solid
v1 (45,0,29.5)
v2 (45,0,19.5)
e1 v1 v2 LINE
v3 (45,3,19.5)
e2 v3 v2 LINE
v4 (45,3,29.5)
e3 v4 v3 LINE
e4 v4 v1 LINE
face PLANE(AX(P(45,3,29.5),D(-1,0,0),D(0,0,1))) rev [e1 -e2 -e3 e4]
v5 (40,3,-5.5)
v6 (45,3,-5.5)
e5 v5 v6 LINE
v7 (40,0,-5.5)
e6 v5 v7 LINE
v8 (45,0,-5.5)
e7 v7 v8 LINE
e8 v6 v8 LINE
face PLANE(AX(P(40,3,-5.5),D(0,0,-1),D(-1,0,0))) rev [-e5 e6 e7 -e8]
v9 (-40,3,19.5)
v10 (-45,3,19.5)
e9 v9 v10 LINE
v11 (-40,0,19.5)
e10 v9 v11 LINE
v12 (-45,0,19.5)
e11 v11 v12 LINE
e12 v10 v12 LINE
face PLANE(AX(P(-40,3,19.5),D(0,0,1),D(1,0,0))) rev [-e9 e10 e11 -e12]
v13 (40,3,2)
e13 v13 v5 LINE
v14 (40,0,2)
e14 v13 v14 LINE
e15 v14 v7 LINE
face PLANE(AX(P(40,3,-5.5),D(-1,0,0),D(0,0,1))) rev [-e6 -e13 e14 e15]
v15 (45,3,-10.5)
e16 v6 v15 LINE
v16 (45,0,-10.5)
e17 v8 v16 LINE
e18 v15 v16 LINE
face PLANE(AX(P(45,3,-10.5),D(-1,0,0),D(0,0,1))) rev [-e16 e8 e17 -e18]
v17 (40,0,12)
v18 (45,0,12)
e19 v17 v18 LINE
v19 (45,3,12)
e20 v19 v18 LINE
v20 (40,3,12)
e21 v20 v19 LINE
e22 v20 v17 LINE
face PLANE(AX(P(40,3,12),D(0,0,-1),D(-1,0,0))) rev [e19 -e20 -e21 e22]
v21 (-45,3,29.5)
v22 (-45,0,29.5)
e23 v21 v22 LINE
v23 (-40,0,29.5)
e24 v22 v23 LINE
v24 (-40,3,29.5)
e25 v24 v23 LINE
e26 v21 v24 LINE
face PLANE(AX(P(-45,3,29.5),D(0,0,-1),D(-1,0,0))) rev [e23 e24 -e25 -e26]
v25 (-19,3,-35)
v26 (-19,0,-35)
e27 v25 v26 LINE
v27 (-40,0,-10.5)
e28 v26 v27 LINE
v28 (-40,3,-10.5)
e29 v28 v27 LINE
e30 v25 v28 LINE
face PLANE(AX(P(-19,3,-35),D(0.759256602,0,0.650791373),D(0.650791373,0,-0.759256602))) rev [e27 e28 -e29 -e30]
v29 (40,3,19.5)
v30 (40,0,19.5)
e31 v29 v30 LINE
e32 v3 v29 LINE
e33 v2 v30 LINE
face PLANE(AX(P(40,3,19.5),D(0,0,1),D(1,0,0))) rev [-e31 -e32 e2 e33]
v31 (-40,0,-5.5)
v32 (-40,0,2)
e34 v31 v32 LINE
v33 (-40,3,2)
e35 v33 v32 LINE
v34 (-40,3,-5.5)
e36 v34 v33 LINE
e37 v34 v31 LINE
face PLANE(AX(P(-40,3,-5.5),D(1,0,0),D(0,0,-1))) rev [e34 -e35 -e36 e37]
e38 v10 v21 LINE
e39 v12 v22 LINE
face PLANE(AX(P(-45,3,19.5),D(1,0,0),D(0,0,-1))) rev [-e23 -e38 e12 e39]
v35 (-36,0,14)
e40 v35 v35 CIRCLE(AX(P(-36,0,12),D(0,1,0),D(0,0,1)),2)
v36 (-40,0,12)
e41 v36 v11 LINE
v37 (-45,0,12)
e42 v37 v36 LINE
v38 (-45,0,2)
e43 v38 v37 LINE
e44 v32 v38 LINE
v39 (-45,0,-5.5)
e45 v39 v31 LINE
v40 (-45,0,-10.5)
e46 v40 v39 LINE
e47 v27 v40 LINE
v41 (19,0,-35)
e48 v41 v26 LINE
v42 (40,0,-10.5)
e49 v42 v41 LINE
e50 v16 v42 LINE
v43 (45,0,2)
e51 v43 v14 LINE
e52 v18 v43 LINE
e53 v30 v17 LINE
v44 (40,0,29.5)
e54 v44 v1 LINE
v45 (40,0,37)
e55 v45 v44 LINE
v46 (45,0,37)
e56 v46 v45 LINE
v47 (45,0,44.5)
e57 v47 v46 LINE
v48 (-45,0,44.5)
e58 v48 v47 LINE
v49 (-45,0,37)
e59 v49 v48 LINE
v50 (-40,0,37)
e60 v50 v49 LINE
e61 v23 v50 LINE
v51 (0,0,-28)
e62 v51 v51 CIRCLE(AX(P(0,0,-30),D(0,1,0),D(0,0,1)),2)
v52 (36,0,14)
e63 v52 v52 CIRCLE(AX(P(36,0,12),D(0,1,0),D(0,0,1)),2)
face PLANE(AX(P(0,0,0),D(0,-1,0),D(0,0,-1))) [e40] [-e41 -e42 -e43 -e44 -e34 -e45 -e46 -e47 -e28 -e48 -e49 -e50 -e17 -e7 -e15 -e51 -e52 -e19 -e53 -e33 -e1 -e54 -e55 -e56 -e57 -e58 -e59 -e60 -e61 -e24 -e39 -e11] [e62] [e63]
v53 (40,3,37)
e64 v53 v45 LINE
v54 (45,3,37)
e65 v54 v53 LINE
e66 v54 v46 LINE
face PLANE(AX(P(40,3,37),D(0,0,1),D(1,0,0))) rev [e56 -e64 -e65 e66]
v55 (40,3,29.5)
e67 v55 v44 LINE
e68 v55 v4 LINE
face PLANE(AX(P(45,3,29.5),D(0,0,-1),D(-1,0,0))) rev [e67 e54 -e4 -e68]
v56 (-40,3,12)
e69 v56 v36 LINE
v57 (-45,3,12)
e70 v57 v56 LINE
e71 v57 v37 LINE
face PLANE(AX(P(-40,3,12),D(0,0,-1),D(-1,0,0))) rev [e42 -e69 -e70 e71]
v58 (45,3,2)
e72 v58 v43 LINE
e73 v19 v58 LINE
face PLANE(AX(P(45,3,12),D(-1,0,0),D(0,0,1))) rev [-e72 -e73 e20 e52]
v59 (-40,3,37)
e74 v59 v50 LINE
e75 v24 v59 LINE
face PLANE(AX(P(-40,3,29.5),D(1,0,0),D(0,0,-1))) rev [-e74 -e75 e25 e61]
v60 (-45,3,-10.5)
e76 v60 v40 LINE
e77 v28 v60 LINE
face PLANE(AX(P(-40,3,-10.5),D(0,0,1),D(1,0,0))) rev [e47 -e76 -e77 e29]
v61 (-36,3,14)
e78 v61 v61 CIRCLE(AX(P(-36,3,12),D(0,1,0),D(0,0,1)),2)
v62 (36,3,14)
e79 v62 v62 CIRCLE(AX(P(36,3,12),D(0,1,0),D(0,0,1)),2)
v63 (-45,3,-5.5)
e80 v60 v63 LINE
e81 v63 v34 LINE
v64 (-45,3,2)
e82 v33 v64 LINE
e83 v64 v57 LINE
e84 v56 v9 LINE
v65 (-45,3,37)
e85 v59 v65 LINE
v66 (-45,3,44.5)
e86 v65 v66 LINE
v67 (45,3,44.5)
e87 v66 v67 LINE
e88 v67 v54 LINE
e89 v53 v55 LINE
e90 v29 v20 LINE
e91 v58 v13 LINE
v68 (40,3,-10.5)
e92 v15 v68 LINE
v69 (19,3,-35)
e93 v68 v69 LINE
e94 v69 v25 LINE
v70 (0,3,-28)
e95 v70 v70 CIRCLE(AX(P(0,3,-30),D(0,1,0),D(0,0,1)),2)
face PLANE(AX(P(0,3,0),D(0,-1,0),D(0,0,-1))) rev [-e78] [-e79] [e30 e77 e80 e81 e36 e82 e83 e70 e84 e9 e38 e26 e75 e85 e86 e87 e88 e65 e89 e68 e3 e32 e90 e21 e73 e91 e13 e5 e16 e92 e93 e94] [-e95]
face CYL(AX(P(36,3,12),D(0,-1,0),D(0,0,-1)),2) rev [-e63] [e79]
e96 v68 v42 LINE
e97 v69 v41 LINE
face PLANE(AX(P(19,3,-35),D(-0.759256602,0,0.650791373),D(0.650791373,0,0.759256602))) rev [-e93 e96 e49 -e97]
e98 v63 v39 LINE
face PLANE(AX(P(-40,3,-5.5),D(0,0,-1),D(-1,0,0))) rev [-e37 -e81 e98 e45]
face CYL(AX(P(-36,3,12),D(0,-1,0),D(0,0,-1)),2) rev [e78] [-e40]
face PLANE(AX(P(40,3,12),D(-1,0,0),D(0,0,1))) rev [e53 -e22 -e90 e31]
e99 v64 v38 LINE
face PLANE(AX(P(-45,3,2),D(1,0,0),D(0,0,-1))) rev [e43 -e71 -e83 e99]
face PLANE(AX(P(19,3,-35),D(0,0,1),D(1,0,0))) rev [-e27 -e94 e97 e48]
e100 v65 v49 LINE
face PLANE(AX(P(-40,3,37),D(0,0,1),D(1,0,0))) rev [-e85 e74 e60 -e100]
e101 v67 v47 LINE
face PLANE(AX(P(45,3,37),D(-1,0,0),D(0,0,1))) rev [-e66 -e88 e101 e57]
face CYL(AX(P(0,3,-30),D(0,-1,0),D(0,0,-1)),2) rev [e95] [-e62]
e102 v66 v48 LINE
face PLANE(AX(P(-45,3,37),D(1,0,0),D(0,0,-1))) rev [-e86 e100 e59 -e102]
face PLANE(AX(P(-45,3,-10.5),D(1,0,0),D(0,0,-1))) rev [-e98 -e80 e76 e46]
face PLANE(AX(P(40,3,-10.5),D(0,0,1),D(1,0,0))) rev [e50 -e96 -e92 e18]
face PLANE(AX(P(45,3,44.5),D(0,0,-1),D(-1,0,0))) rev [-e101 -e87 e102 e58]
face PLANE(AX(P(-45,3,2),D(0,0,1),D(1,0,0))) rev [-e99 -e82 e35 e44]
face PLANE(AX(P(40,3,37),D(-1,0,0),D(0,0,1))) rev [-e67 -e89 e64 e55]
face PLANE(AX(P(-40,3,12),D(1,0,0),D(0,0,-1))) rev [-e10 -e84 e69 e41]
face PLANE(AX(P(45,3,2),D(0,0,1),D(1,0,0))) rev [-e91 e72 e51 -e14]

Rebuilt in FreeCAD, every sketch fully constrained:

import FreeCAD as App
import Part
import Sketcher

doc = App.newDocument("Part")
params = doc.addObject("Spreadsheet::Sheet", "Params")
for row, (alias, value) in enumerate([
    ("sketch1_diameter", "4 mm"),
    ("sketch1_width", "5 mm"),
    ("sketch1_width2", "90 mm"),
    ("sketch1_width3", "38 mm"),
    ("sketch1_height", "10 mm"),
    ("pad1_length", "3 mm"),
], start=1):
    params.set(f"A{row}", alias)
    params.set(f"B{row}", "=" + value)
    params.setAlias(f"B{row}", alias)

body = doc.addObject("PartDesign::Body", "Body")

# Sketch on XZ plane
sketch1 = body.newObject("Sketcher::SketchObject", "Sketch")
sketch1.AttachmentSupport = (doc.getObject("XZ_Plane"), [""])
sketch1.MapMode = "FlatFace"
sketch1.addGeometry([
    Part.LineSegment(App.Vector(-19, -35, 0), App.Vector(-40, -10.5, 0)),  # 0
    Part.LineSegment(App.Vector(-40, -10.5, 0), App.Vector(-45, -10.5, 0)),  # 1
    Part.LineSegment(App.Vector(-45, -10.5, 0), App.Vector(-45, -5.5, 0)),  # 2
    Part.LineSegment(App.Vector(-45, -5.5, 0), App.Vector(-40, -5.5, 0)),  # 3
    Part.LineSegment(App.Vector(-40, -5.5, 0), App.Vector(-40, 2, 0)),  # 4
    Part.LineSegment(App.Vector(-40, 2, 0), App.Vector(-45, 2, 0)),  # 5
    Part.LineSegment(App.Vector(-45, 2, 0), App.Vector(-45, 12, 0)),  # 6
    Part.LineSegment(App.Vector(-45, 12, 0), App.Vector(-40, 12, 0)),  # 7
    Part.LineSegment(App.Vector(-40, 12, 0), App.Vector(-40, 19.5, 0)),  # 8
    Part.LineSegment(App.Vector(-40, 19.5, 0), App.Vector(-45, 19.5, 0)),  # 9
    Part.LineSegment(App.Vector(-45, 19.5, 0), App.Vector(-45, 29.5, 0)),  # 10
    Part.LineSegment(App.Vector(-45, 29.5, 0), App.Vector(-40, 29.5, 0)),  # 11
    Part.LineSegment(App.Vector(-40, 29.5, 0), App.Vector(-40, 37, 0)),  # 12
    Part.LineSegment(App.Vector(-40, 37, 0), App.Vector(-45, 37, 0)),  # 13
    Part.LineSegment(App.Vector(-45, 37, 0), App.Vector(-45, 44.5, 0)),  # 14
    Part.LineSegment(App.Vector(-45, 44.5, 0), App.Vector(45, 44.5, 0)),  # 15
    Part.LineSegment(App.Vector(45, 44.5, 0), App.Vector(45, 37, 0)),  # 16
    Part.LineSegment(App.Vector(45, 37, 0), App.Vector(40, 37, 0)),  # 17
    Part.LineSegment(App.Vector(40, 37, 0), App.Vector(40, 29.5, 0)),  # 18
    Part.LineSegment(App.Vector(40, 29.5, 0), App.Vector(45, 29.5, 0)),  # 19
    Part.LineSegment(App.Vector(45, 29.5, 0), App.Vector(45, 19.5, 0)),  # 20
    Part.LineSegment(App.Vector(45, 19.5, 0), App.Vector(40, 19.5, 0)),  # 21
    Part.LineSegment(App.Vector(40, 19.5, 0), App.Vector(40, 12, 0)),  # 22
    Part.LineSegment(App.Vector(40, 12, 0), App.Vector(45, 12, 0)),  # 23
    Part.LineSegment(App.Vector(45, 12, 0), App.Vector(45, 2, 0)),  # 24
    Part.LineSegment(App.Vector(45, 2, 0), App.Vector(40, 2, 0)),  # 25
    Part.LineSegment(App.Vector(40, 2, 0), App.Vector(40, -5.5, 0)),  # 26
    Part.LineSegment(App.Vector(40, -5.5, 0), App.Vector(45, -5.5, 0)),  # 27
    Part.LineSegment(App.Vector(45, -5.5, 0), App.Vector(45, -10.5, 0)),  # 28
    Part.LineSegment(App.Vector(45, -10.5, 0), App.Vector(40, -10.5, 0)),  # 29
    Part.LineSegment(App.Vector(40, -10.5, 0), App.Vector(19, -35, 0)),  # 30
    Part.LineSegment(App.Vector(19, -35, 0), App.Vector(-19, -35, 0)),  # 31
    Part.Circle(App.Vector(-36, 12, 0), App.Vector(0, 0, 1), 2),  # 32
    Part.Circle(App.Vector(36, 12, 0), App.Vector(0, 0, 1), 2),  # 33
    Part.Circle(App.Vector(0, -30, 0), App.Vector(0, 0, 1), 2),  # 34
], False)
sketch1.addConstraint([
    Sketcher.Constraint("Coincident", 0, 2, 1, 1),
    Sketcher.Constraint("Coincident", 1, 2, 2, 1),
    Sketcher.Constraint("Coincident", 2, 2, 3, 1),
    Sketcher.Constraint("Coincident", 3, 2, 4, 1),
    Sketcher.Constraint("Coincident", 4, 2, 5, 1),
    Sketcher.Constraint("Coincident", 5, 2, 6, 1),
    Sketcher.Constraint("Coincident", 6, 2, 7, 1),
    Sketcher.Constraint("Coincident", 7, 2, 8, 1),
    Sketcher.Constraint("Coincident", 8, 2, 9, 1),
    Sketcher.Constraint("Coincident", 9, 2, 10, 1),
    Sketcher.Constraint("Coincident", 10, 2, 11, 1),
    Sketcher.Constraint("Coincident", 11, 2, 12, 1),
    Sketcher.Constraint("Coincident", 12, 2, 13, 1),
    Sketcher.Constraint("Coincident", 13, 2, 14, 1),
    Sketcher.Constraint("Coincident", 14, 2, 15, 1),
    Sketcher.Constraint("Coincident", 15, 2, 16, 1),
    Sketcher.Constraint("Coincident", 16, 2, 17, 1),
    Sketcher.Constraint("Coincident", 17, 2, 18, 1),
    Sketcher.Constraint("Coincident", 18, 2, 19, 1),
    Sketcher.Constraint("Coincident", 19, 2, 20, 1),
    Sketcher.Constraint("Coincident", 20, 2, 21, 1),
    Sketcher.Constraint("Coincident", 21, 2, 22, 1),
    Sketcher.Constraint("Coincident", 22, 2, 23, 1),
    Sketcher.Constraint("Coincident", 23, 2, 24, 1),
    Sketcher.Constraint("Coincident", 24, 2, 25, 1),
    Sketcher.Constraint("Coincident", 25, 2, 26, 1),
    Sketcher.Constraint("Coincident", 26, 2, 27, 1),
    Sketcher.Constraint("Coincident", 27, 2, 28, 1),
    Sketcher.Constraint("Coincident", 28, 2, 29, 1),
    Sketcher.Constraint("Coincident", 29, 2, 30, 1),
    Sketcher.Constraint("Coincident", 30, 2, 31, 1),
    Sketcher.Constraint("Coincident", 31, 2, 0, 1),
    Sketcher.Constraint("Horizontal", 1),
    Sketcher.Constraint("Vertical", 2),
    Sketcher.Constraint("Horizontal", 3),
    Sketcher.Constraint("Vertical", 4),
    Sketcher.Constraint("Horizontal", 5),
    Sketcher.Constraint("Vertical", 6),
    Sketcher.Constraint("Horizontal", 7),
    Sketcher.Constraint("Vertical", 8),
    Sketcher.Constraint("Horizontal", 9),
    Sketcher.Constraint("Vertical", 10),
    Sketcher.Constraint("Horizontal", 11),
    Sketcher.Constraint("Vertical", 12),
    Sketcher.Constraint("Horizontal", 13),
    Sketcher.Constraint("Vertical", 14),
    Sketcher.Constraint("Horizontal", 15),
    Sketcher.Constraint("Vertical", 16),
    Sketcher.Constraint("Horizontal", 17),
    Sketcher.Constraint("Vertical", 18),
    Sketcher.Constraint("Horizontal", 19),
    Sketcher.Constraint("Vertical", 20),
    Sketcher.Constraint("Horizontal", 21),
    Sketcher.Constraint("Vertical", 22),
    Sketcher.Constraint("Horizontal", 23),
    Sketcher.Constraint("Vertical", 24),
    Sketcher.Constraint("Horizontal", 25),
    Sketcher.Constraint("Vertical", 26),
    Sketcher.Constraint("Horizontal", 27),
    Sketcher.Constraint("Vertical", 28),
    Sketcher.Constraint("Horizontal", 29),
    Sketcher.Constraint("Horizontal", 31),
    Sketcher.Constraint("Equal", 32, 33),
    Sketcher.Constraint("Equal", 33, 34),
    Sketcher.Constraint("Symmetric", 32, 3, 33, 3, -2),
    Sketcher.Constraint("Symmetric", 13, 2, 16, 2, -2),
    Sketcher.Constraint("Symmetric", 11, 2, 18, 2, -2),
    Sketcher.Constraint("Symmetric", 9, 2, 20, 2, -2),
    Sketcher.Constraint("Symmetric", 7, 2, 22, 2, -2),
    Sketcher.Constraint("Symmetric", 5, 2, 24, 2, -2),
    Sketcher.Constraint("Symmetric", 3, 2, 26, 2, -2),
    Sketcher.Constraint("Symmetric", 1, 2, 28, 2, -2),
    Sketcher.Constraint("PointOnObject", 34, 3, -2),
    Sketcher.Constraint("Horizontal", 33, 3, 6, 2),
    Sketcher.Constraint("Vertical", 0, 2, 3, 2),
    Sketcher.Constraint("Vertical", 2, 2, 5, 2),
    Sketcher.Constraint("Vertical", 4, 2, 7, 2),
    Sketcher.Constraint("Vertical", 6, 2, 9, 2),
    Sketcher.Constraint("Vertical", 8, 2, 11, 2),
    Sketcher.Constraint("Vertical", 10, 2, 13, 2),
    Sketcher.Constraint("Vertical", 26, 2, 29, 2),
    Sketcher.Constraint("Equal", 29, 2),
    Sketcher.Constraint("Equal", 4, 8),
    Sketcher.Constraint("Equal", 6, 10),
    Sketcher.Constraint("Equal", 8, 12),
    Sketcher.Constraint("Equal", 12, 14),
    Sketcher.Constraint("Equal", 0, 30),
    Sketcher.Constraint("Diameter", 32, 4.0),
    Sketcher.Constraint("DistanceX", 1, 2, 1, 1, 5.0),
    Sketcher.Constraint("DistanceX", 15, 1, 15, 2, 90.0),
    Sketcher.Constraint("DistanceX", 31, 2, 31, 1, 38.0),
    Sketcher.Constraint("DistanceY", 6, 1, 6, 2, 10.0),
    Sketcher.Constraint("DistanceY", 4, 1, 4, 2, 7.5),
    Sketcher.Constraint("DistanceX", 32, 3, -1, 1, 36.0),
    Sketcher.Constraint("DistanceY", -1, 1, 32, 3, 12.0),
    Sketcher.Constraint("DistanceY", 34, 3, -1, 1, 30.0),
    Sketcher.Constraint("DistanceY", 30, 2, -1, 1, 35.0),
])
sketch1.setExpression("Constraints[87]", "Params.sketch1_diameter")
sketch1.setExpression("Constraints[88]", "Params.sketch1_width")
sketch1.setExpression("Constraints[89]", "Params.sketch1_width2")
sketch1.setExpression("Constraints[90]", "Params.sketch1_width3")
sketch1.setExpression("Constraints[91]", "Params.sketch1_height")
pad1 = body.newObject("PartDesign::Pad", "Pad")
pad1.Profile = sketch1
pad1.setExpression("Length", "Params.pad1_length")
pad1.Reversed = True

doc.recompute()
